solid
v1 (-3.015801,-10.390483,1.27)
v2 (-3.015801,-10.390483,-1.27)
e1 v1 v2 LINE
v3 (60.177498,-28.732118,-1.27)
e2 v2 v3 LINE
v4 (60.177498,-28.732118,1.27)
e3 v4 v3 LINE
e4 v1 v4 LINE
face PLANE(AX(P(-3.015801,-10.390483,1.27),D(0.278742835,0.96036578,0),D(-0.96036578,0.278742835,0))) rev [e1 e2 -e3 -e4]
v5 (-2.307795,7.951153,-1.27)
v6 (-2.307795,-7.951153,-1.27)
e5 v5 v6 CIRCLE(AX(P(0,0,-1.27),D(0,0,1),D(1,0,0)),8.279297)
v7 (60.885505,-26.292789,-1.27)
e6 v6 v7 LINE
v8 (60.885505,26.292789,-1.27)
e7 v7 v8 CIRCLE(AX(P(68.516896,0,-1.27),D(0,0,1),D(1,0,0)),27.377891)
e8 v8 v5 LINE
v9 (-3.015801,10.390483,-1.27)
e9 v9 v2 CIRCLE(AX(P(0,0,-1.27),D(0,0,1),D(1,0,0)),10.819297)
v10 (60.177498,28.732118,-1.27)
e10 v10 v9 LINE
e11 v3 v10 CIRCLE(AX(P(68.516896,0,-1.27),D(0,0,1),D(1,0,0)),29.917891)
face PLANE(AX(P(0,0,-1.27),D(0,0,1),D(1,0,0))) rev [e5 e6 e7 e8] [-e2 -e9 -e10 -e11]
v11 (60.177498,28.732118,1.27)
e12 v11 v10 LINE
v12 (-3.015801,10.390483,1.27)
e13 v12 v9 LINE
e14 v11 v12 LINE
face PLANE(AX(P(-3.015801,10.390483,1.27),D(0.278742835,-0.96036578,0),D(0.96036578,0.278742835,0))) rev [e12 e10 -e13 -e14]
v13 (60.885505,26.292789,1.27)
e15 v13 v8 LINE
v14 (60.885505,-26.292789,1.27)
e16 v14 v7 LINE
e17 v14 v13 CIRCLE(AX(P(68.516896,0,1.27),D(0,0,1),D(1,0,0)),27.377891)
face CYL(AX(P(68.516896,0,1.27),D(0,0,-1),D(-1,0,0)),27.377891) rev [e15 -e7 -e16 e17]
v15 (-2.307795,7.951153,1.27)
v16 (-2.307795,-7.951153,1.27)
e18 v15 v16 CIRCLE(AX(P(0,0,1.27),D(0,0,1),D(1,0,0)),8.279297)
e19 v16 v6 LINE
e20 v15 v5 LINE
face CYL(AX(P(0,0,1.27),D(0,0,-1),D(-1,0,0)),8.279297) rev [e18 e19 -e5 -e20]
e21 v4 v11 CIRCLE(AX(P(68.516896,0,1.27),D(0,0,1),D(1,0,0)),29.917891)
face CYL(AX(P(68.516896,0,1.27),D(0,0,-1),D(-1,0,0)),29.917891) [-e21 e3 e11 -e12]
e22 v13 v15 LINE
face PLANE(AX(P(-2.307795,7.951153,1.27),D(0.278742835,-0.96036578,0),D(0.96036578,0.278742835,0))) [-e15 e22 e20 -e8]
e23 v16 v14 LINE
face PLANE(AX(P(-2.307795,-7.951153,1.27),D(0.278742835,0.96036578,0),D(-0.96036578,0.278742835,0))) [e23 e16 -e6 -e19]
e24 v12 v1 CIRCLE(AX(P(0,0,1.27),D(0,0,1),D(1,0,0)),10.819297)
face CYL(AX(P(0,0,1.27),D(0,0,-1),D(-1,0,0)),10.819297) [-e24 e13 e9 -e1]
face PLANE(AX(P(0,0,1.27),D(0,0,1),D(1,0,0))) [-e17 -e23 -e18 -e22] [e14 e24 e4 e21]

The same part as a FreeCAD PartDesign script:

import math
import FreeCAD as App
import Part
import Sketcher

doc = App.newDocument("Part")
params = doc.addObject("Spreadsheet::Sheet", "Params")
for row, (alias, value) in enumerate([
    ("pad1_length", "0.1 in"),
], start=1):
    params.set(f"A{row}", alias)
    params.set(f"B{row}", "=" + value)
    params.setAlias(f"B{row}", alias)

body = doc.addObject("PartDesign::Body", "Body")

# Sketch on XY plane
sketch1 = body.newObject("Sketcher::SketchObject", "Sketch")
sketch1.AttachmentSupport = (doc.getObject("XY_Plane"), [""])
sketch1.MapMode = "FlatFace"
sketch1.addGeometry(Part.LineSegment(App.Vector(-3, -10, 0), App.Vector(60, -29, 0)), False)
sketch1.addGeometry(Part.ArcOfCircle(Part.Circle(App.Vector(69, 0, 0), App.Vector(0, 0, 1), 30), math.radians(-106), math.radians(106)), False)
sketch1.addGeometry(Part.LineSegment(App.Vector(60, 29, 0), App.Vector(-3, 10, 0)), False)
sketch1.addGeometry(Part.ArcOfCircle(Part.Circle(App.Vector(0, 0, 0), App.Vector(0, 0, 1), 11), math.radians(106), math.radians(254)), False)
sketch1.addGeometry(Part.LineSegment(App.Vector(61, -26, 0), App.Vector(-2, -8, 0)), False)
sketch1.addGeometry(Part.ArcOfCircle(Part.Circle(App.Vector(0, 0, 0), App.Vector(0, 0, 1), 8), math.radians(106), math.radians(254)), False)
sketch1.addGeometry(Part.LineSegment(App.Vector(-2, 8, 0), App.Vector(61, 26, 0)), False)
sketch1.addGeometry(Part.ArcOfCircle(Part.Circle(App.Vector(69, 0, 0), App.Vector(0, 0, 1), 27), math.radians(-106), math.radians(106)), False)
sketch1.addConstraint(Sketcher.Constraint("Tangent", 0, 2, 1, 1))
sketch1.addConstraint(Sketcher.Constraint("Tangent", 1, 2, 2, 1))
sketch1.addConstraint(Sketcher.Constraint("Tangent", 2, 2, 3, 1))
sketch1.addConstraint(Sketcher.Constraint("Tangent", 3, 2, 0, 1))
sketch1.addConstraint(Sketcher.Constraint("Tangent", 4, 2, 5, 2))
sketch1.addConstraint(Sketcher.Constraint("Tangent", 5, 1, 6, 1))
sketch1.addConstraint(Sketcher.Constraint("Tangent", 6, 2, 7, 2))
sketch1.addConstraint(Sketcher.Constraint("Tangent", 7, 1, 4, 1))
sketch1.addConstraint(Sketcher.Constraint("Coincident", 3, 3, -1, 1))
sketch1.addConstraint(Sketcher.Constraint("Coincident", 5, 3, -1, 1))
sketch1.addConstraint(Sketcher.Constraint("Coincident", 7, 3, 1, 3))
sketch1.addConstraint(Sketcher.Constraint("PointOnObject", 1, 3, -1))
sketch1.addConstraint(Sketcher.Constraint("Parallel", 0, 4))
sketch1.addConstraint(Sketcher.Constraint("Radius", 1, 29.917891))
sketch1.addConstraint(Sketcher.Constraint("Radius", 7, 27.377891))
sketch1.addConstraint(Sketcher.Constraint("Radius", 3, 10.819297))
sketch1.addConstraint(Sketcher.Constraint("DistanceX", -1, 1, 0, 2, 60.177498))
pad1 = body.newObject("PartDesign::Pad", "Pad")
pad1.Profile = sketch1
pad1.setExpression("Length", "Params.pad1_length")
pad1.Midplane = True

doc.recompute()
